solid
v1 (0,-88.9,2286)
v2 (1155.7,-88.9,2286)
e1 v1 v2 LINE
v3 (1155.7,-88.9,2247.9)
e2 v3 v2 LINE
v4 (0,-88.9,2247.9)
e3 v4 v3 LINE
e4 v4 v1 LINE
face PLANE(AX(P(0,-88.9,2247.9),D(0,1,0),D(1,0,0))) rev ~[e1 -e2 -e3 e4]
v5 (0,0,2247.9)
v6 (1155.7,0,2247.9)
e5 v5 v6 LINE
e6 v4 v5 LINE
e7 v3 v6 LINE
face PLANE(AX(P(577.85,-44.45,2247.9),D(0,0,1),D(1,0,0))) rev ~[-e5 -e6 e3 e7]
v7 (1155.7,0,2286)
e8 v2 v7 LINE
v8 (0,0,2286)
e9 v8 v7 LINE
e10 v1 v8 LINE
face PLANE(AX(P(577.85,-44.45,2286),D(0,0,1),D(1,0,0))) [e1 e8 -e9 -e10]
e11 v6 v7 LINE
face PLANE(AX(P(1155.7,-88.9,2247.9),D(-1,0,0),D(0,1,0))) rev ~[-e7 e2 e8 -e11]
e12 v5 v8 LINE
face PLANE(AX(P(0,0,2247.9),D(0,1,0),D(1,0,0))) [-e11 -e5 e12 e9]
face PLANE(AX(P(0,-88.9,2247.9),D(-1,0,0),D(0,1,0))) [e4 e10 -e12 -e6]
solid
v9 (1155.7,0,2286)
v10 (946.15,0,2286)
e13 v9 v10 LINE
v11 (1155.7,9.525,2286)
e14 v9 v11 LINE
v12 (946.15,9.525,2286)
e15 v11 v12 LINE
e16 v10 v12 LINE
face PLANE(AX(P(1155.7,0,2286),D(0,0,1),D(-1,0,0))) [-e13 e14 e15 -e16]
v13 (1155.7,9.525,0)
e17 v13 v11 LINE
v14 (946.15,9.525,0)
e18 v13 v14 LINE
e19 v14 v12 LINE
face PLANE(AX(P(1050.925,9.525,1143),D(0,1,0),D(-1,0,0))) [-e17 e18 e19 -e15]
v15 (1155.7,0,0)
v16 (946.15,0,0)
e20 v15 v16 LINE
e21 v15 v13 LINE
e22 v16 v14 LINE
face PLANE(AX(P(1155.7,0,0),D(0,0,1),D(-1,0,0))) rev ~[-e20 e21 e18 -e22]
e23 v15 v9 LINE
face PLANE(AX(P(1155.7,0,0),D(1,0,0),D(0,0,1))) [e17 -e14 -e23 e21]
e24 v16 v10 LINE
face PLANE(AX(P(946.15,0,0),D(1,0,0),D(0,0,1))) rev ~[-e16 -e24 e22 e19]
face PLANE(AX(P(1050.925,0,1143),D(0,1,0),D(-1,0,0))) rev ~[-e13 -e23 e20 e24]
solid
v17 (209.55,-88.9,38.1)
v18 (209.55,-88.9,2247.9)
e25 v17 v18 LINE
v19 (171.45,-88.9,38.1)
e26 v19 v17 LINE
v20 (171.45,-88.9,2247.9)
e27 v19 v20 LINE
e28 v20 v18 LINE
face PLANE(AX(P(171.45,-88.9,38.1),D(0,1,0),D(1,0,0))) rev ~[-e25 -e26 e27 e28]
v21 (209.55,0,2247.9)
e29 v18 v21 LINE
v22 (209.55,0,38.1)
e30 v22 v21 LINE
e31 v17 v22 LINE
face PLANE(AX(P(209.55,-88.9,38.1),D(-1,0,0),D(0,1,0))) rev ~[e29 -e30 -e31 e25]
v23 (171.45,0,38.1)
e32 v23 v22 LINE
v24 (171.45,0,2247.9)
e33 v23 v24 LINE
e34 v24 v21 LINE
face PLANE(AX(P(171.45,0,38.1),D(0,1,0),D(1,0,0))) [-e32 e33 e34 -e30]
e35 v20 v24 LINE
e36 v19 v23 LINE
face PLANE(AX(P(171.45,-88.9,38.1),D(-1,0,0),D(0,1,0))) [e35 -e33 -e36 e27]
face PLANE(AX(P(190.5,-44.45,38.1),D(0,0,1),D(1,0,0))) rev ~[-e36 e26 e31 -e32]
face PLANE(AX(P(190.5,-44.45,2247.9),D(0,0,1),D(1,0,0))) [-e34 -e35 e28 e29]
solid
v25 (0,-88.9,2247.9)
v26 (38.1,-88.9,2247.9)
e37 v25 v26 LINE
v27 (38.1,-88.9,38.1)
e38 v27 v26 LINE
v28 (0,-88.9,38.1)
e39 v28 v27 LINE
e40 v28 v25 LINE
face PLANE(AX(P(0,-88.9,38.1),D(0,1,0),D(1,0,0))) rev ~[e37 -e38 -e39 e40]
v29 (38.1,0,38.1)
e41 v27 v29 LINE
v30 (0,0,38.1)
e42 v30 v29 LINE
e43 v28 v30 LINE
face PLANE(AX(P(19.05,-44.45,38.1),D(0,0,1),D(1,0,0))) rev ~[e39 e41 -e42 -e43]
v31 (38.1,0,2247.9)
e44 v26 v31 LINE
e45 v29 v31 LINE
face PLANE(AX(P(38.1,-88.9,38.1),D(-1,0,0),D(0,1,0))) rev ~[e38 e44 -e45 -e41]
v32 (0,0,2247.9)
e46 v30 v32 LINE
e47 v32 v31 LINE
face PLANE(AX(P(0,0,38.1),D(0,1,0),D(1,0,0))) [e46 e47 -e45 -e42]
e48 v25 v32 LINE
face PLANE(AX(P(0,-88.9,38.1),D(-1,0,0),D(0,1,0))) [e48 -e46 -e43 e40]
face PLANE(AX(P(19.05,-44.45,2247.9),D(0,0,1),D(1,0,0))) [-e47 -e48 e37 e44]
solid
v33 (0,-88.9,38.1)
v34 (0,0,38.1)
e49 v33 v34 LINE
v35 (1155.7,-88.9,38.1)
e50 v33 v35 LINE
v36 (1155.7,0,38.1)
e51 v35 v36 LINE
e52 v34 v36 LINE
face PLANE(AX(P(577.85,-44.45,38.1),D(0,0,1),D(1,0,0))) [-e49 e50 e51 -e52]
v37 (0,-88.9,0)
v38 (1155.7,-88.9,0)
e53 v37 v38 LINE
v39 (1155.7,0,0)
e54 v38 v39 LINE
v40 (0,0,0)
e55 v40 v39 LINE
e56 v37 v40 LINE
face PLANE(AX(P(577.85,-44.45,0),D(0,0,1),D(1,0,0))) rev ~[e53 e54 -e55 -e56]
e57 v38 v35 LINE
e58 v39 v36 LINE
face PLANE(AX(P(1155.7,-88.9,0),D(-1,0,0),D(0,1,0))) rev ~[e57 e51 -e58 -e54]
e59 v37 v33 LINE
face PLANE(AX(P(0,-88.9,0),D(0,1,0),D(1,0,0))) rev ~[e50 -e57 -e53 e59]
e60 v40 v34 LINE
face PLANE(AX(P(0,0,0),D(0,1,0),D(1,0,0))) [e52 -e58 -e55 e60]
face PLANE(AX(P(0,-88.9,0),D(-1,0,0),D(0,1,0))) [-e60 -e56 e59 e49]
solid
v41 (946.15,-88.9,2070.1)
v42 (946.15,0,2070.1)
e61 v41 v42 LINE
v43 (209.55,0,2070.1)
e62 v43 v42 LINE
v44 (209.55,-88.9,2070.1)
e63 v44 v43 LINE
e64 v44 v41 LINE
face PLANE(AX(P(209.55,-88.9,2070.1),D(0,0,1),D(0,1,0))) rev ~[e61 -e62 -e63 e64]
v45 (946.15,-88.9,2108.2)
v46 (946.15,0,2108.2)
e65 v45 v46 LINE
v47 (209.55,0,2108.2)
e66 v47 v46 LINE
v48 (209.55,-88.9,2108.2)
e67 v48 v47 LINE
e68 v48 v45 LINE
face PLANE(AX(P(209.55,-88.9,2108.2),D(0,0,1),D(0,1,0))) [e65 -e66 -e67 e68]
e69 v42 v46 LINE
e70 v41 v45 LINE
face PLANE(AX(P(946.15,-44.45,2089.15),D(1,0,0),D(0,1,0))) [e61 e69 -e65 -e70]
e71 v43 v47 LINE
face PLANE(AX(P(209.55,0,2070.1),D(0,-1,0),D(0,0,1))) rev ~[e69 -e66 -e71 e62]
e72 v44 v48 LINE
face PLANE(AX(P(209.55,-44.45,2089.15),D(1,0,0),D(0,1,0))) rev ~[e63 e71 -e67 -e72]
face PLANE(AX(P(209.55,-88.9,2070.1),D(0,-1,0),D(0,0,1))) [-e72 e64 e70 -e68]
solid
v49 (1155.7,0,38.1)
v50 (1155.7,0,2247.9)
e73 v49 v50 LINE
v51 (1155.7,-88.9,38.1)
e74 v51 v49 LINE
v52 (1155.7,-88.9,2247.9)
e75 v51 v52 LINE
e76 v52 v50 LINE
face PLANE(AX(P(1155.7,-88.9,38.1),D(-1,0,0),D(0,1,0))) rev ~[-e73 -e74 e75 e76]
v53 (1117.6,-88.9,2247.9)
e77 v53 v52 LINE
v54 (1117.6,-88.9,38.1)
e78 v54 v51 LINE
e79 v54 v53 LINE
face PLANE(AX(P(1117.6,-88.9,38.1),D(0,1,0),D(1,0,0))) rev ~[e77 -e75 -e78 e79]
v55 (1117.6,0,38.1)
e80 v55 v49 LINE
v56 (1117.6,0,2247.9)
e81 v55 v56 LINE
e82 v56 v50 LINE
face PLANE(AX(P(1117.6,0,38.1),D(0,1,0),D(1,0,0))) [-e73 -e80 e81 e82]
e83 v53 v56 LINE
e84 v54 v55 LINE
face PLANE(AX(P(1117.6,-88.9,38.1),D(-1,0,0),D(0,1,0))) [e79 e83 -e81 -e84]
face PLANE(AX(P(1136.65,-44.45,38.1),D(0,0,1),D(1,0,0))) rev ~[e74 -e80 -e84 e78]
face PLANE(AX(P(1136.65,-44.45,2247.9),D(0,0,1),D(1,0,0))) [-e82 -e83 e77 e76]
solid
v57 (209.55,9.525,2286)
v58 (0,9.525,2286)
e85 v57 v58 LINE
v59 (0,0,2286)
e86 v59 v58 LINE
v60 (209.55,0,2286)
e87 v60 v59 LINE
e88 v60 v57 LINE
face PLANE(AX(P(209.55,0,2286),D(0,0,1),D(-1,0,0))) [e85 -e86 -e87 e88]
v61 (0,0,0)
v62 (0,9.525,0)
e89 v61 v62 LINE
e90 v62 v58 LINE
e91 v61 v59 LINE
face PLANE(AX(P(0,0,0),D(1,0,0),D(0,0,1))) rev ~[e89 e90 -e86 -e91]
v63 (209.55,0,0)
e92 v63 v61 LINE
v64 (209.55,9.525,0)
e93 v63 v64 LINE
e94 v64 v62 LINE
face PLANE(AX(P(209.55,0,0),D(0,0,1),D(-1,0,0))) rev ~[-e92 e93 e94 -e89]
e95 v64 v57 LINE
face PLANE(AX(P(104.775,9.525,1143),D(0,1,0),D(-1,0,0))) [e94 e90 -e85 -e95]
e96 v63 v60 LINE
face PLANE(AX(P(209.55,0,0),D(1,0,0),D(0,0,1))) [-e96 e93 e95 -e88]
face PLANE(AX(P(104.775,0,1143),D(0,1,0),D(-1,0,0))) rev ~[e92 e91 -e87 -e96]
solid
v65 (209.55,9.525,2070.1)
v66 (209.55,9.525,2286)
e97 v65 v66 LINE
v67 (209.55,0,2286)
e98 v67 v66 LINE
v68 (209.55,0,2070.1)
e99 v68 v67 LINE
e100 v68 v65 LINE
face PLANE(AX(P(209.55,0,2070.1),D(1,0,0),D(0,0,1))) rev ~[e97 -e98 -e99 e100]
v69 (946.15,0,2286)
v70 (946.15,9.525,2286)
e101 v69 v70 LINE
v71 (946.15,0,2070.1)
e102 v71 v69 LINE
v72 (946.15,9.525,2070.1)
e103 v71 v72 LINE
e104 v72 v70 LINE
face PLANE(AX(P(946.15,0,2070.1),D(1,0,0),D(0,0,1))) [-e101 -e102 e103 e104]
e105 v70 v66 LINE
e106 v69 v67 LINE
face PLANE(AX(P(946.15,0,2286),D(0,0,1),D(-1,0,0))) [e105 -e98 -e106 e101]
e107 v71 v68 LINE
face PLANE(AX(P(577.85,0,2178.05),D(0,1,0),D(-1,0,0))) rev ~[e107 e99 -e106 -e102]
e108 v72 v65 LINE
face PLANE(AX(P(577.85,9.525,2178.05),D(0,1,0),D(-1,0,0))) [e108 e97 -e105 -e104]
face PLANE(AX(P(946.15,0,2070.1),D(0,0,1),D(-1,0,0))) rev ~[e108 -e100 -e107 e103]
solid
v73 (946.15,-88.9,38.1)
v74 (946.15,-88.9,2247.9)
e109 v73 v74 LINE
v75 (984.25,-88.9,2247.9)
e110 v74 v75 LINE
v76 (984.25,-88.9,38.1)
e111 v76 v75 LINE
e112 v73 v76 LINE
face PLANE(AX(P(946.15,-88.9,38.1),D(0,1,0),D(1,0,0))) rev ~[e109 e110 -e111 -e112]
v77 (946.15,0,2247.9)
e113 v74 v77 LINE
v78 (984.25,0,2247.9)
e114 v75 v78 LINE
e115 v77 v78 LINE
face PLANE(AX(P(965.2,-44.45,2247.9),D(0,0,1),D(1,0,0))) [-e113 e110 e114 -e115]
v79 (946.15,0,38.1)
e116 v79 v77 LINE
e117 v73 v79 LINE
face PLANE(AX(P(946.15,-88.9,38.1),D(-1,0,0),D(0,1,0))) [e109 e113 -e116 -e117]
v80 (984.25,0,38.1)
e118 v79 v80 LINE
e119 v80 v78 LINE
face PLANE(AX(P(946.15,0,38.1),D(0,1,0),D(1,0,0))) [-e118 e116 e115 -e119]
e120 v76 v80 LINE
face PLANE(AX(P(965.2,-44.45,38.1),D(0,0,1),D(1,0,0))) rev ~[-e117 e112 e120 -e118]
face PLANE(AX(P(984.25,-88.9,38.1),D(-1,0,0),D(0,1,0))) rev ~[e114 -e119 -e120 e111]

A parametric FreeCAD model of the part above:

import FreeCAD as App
import Part
import Sketcher
Q = App.Units.Quantity


def add_polygon(sketch, points):
    """Adds a closed chain of lines whose ends are joined by coincident constraints."""
    first, n = sketch.GeometryCount, len(points)
    for a, b in zip(points, points[1:] + points[:1]):
        sketch.addGeometry(Part.LineSegment(App.Vector(*a, 0), App.Vector(*b, 0)), False)
    for i in range(n):
        sketch.addConstraint(Sketcher.Constraint("Coincident", first + i, 2, first + (i + 1) % n, 1))

doc = App.newDocument("Part")
body = doc.addObject("PartDesign::Body", "Body")

# Sketch on XY plane
sketch1 = body.newObject("Sketcher::SketchObject", "Sketch")
sketch1.AttachmentSupport = (doc.getObject("XY_Plane"), [""])
sketch1.MapMode = "FlatFace"
add_polygon(sketch1, [(0, 0), (0, -89), (1156, -89), (1156, 0)])  # lines 0-3
sketch1.addConstraint(Sketcher.Constraint("Vertical", 0))
sketch1.addConstraint(Sketcher.Constraint("Horizontal", 1))
sketch1.addConstraint(Sketcher.Constraint("Vertical", 2))
sketch1.addConstraint(Sketcher.Constraint("Horizontal", 3))
sketch1.addConstraint(Sketcher.Constraint("Coincident", 3, 2, -1, 1))
sketch1.addConstraint(Sketcher.Constraint("DistanceX", 1, 1, 1, 2, Q("45.5 in")))
sketch1.addConstraint(Sketcher.Constraint("DistanceY", 0, 2, 0, 1, Q("3.5 in")))
pad1 = body.newObject("PartDesign::Pad", "Pad")
pad1.Profile = sketch1
pad1.Length = Q("1.5 in")
body2 = doc.addObject("PartDesign::Body", "Body001")

# Sketch on XY plane
sketch2 = body2.newObject("Sketcher::SketchObject", "Sketch001")
sketch2.AttachmentSupport = (doc.getObject("XY_Plane001"), [""])
sketch2.MapMode = "FlatFace"
sketch2.AttachmentOffset = App.Placement(App.Vector(0, 0, 1.5 * 25.4), App.Rotation())
add_polygon(sketch2, [(0, 0), (0, -89), (38, -89), (38, 0)])  # lines 0-3
sketch2.addConstraint(Sketcher.Constraint("Vertical", 0))
sketch2.addConstraint(Sketcher.Constraint("Horizontal", 1))
sketch2.addConstraint(Sketcher.Constraint("Vertical", 2))
sketch2.addConstraint(Sketcher.Constraint("Horizontal", 3))
sketch2.addConstraint(Sketcher.Constraint("Coincident", 3, 2, -1, 1))
sketch2.addConstraint(Sketcher.Constraint("DistanceX", 1, 1, 1, 2, Q("1.5 in")))
sketch2.addConstraint(Sketcher.Constraint("DistanceY", 0, 2, 0, 1, Q("3.5 in")))
pad2 = body2.newObject("PartDesign::Pad", "Pad001")
pad2.Profile = sketch2
pad2.Length = Q("87 in")
body3 = doc.addObject("PartDesign::Body", "Body002")

# Sketch on XY plane
sketch3 = body3.newObject("Sketcher::SketchObject", "Sketch002")
sketch3.AttachmentSupport = (doc.getObject("XY_Plane002"), [""])
sketch3.MapMode = "FlatFace"
sketch3.AttachmentOffset = App.Placement(App.Vector(0, 0, 1.5 * 25.4), App.Rotation())
add_polygon(sketch3, [(1118, 0), (1118, -89), (1156, -89), (1156, 0)])  # lines 0-3
sketch3.addConstraint(Sketcher.Constraint("Vertical", 0))
sketch3.addConstraint(Sketcher.Constraint("Horizontal", 1))
sketch3.addConstraint(Sketcher.Constraint("Vertical", 2))
sketch3.addConstraint(Sketcher.Constraint("Horizontal", 3))
sketch3.addConstraint(Sketcher.Constraint("PointOnObject", 2, 2, -1))
sketch3.addConstraint(Sketcher.Constraint("DistanceX", 1, 1, 1, 2, Q("1.5 in")))
sketch3.addConstraint(Sketcher.Constraint("DistanceY", 0, 2, 0, 1, Q("3.5 in")))
sketch3.addConstraint(Sketcher.Constraint("DistanceX", -1, 1, 0, 2, Q("44 in")))
pad3 = body3.newObject("PartDesign::Pad", "Pad002")
pad3.Profile = sketch3
pad3.Length = Q("87 in")
body4 = doc.addObject("PartDesign::Body", "Body003")

# Sketch on XY plane
sketch4 = body4.newObject("Sketcher::SketchObject", "Sketch003")
sketch4.AttachmentSupport = (doc.getObject("XY_Plane003"), [""])
sketch4.MapMode = "FlatFace"
sketch4.AttachmentOffset = App.Placement(App.Vector(0, 0, 1.5 * 25.4), App.Rotation())
add_polygon(sketch4, [(171, 0), (171, -89), (210, -89), (210, 0)])  # lines 0-3
sketch4.addConstraint(Sketcher.Constraint("Vertical", 0))
sketch4.addConstraint(Sketcher.Constraint("Horizontal", 1))
sketch4.addConstraint(Sketcher.Constraint("Vertical", 2))
sketch4.addConstraint(Sketcher.Constraint("Horizontal", 3))
sketch4.addConstraint(Sketcher.Constraint("PointOnObject", 2, 2, -1))
sketch4.addConstraint(Sketcher.Constraint("DistanceX", 1, 1, 1, 2, Q("1.5 in")))
sketch4.addConstraint(Sketcher.Constraint("DistanceY", 0, 2, 0, 1, Q("3.5 in")))
sketch4.addConstraint(Sketcher.Constraint("DistanceX", -1, 1, 0, 2, Q("6.75 in")))
pad4 = body4.newObject("PartDesign::Pad", "Pad003")
pad4.Profile = sketch4
pad4.Length = Q("87 in")
body5 = doc.addObject("PartDesign::Body", "Body004")

# Sketch on XY plane
sketch5 = body5.newObject("Sketcher::SketchObject", "Sketch004")
sketch5.AttachmentSupport = (doc.getObject("XY_Plane004"), [""])
sketch5.MapMode = "FlatFace"
sketch5.AttachmentOffset = App.Placement(App.Vector(0, 0, 1.5 * 25.4), App.Rotation())
add_polygon(sketch5, [(946, 0), (946, -89), (984, -89), (984, 0)])  # lines 0-3
sketch5.addConstraint(Sketcher.Constraint("Vertical", 0))
sketch5.addConstraint(Sketcher.Constraint("Horizontal", 1))
sketch5.addConstraint(Sketcher.Constraint("Vertical", 2))
sketch5.addConstraint(Sketcher.Constraint("Horizontal", 3))
sketch5.addConstraint(Sketcher.Constraint("PointOnObject", 2, 2, -1))
sketch5.addConstraint(Sketcher.Constraint("DistanceX", 1, 1, 1, 2, Q("1.5 in")))
sketch5.addConstraint(Sketcher.Constraint("DistanceY", 0, 2, 0, 1, Q("3.5 in")))
sketch5.addConstraint(Sketcher.Constraint("DistanceX", -1, 1, 0, 2, Q("37.25 in")))
pad5 = body5.newObject("PartDesign::Pad", "Pad004")
pad5.Profile = sketch5
pad5.Length = Q("87 in")
body6 = doc.addObject("PartDesign::Body", "Body005")

# Sketch on XY plane
sketch6 = body6.newObject("Sketcher::SketchObject", "Sketch005")
sketch6.AttachmentSupport = (doc.getObject("XY_Plane005"), [""])
sketch6.MapMode = "FlatFace"
sketch6.AttachmentOffset = App.Placement(App.Vector(0, 0, 88.5 * 25.4), App.Rotation())
add_polygon(sketch6, [(0, 0), (0, -89), (1156, -89), (1156, 0)])  # lines 0-3
sketch6.addConstraint(Sketcher.Constraint("Vertical", 0))
sketch6.addConstraint(Sketcher.Constraint("Horizontal", 1))
sketch6.addConstraint(Sketcher.Constraint("Vertical", 2))
sketch6.addConstraint(Sketcher.Constraint("Horizontal", 3))
sketch6.addConstraint(Sketcher.Constraint("Coincident", 3, 2, -1, 1))
sketch6.addConstraint(Sketcher.Constraint("DistanceX", 1, 1, 1, 2, Q("45.5 in")))
sketch6.addConstraint(Sketcher.Constraint("DistanceY", 0, 2, 0, 1, Q("3.5 in")))
pad6 = body6.newObject("PartDesign::Pad", "Pad005")
pad6.Profile = sketch6
pad6.Length = Q("1.5 in")
body7 = doc.addObject("PartDesign::Body", "Body006")

# Sketch on YZ plane
sketch7 = body7.newObject("Sketcher::SketchObject", "Sketch006")
sketch7.AttachmentSupport = (doc.getObject("YZ_Plane006"), [""])
sketch7.MapMode = "FlatFace"
sketch7.AttachmentOffset = App.Placement(App.Vector(0, 0, 8.25 * 25.4), App.Rotation())
add_polygon(sketch7, [(-89, 2108), (-89, 2070), (0, 2070), (0, 2108)])  # lines 0-3
sketch7.addConstraint(Sketcher.Constraint("Vertical", 0))
sketch7.addConstraint(Sketcher.Constraint("Horizontal", 1))
sketch7.addConstraint(Sketcher.Constraint("Vertical", 2))
sketch7.addConstraint(Sketcher.Constraint("Horizontal", 3))
sketch7.addConstraint(Sketcher.Constraint("PointOnObject", 1, 2, -2))
sketch7.addConstraint(Sketcher.Constraint("DistanceX", 1, 1, 1, 2, Q("3.5 in")))
sketch7.addConstraint(Sketcher.Constraint("DistanceY", 0, 2, 0, 1, Q("1.5 in")))
sketch7.addConstraint(Sketcher.Constraint("DistanceY", -1, 1, 2, 2, Q("83 in")))
pad7 = body7.newObject("PartDesign::Pad", "Pad006")
pad7.Profile = sketch7
pad7.Length = Q("29 in")
body8 = doc.addObject("PartDesign::Body", "Body007")

# Sketch on XZ plane
sketch8 = body8.newObject("Sketcher::SketchObject", "Sketch007")
sketch8.AttachmentSupport = (doc.getObject("XZ_Plane007"), [""])
sketch8.MapMode = "FlatFace"
add_polygon(sketch8, [(1156, 2286), (1156, 0), (946, 0), (946, 2286)])  # lines 0-3
sketch8.addConstraint(Sketcher.Constraint("Vertical", 0))
sketch8.addConstraint(Sketcher.Constraint("Horizontal", 1))
sketch8.addConstraint(Sketcher.Constraint("Vertical", 2))
sketch8.addConstraint(Sketcher.Constraint("Horizontal", 3))
sketch8.addConstraint(Sketcher.Constraint("PointOnObject", 0, 2, -1))
sketch8.addConstraint(Sketcher.Constraint("DistanceY", 0, 2, 0, 1, Q("90 in")))
sketch8.addConstraint(Sketcher.Constraint("DistanceX", 1, 2, 1, 1, Q("8.25 in")))
sketch8.addConstraint(Sketcher.Constraint("DistanceX", -1, 1, 0, 2, Q("45.5 in")))
pad8 = body8.newObject("PartDesign::Pad", "Pad007")
pad8.Profile = sketch8
pad8.Length = Q("0.375 in")
pad8.Reversed = True
body9 = doc.addObject("PartDesign::Body", "Body008")

# Sketch on XZ plane
sketch9 = body9.newObject("Sketcher::SketchObject", "Sketch008")
sketch9.AttachmentSupport = (doc.getObject("XZ_Plane008"), [""])
sketch9.MapMode = "FlatFace"
add_polygon(sketch9, [(210, 2286), (210, 0), (0, 0), (0, 2286)])  # lines 0-3
sketch9.addConstraint(Sketcher.Constraint("Vertical", 0))
sketch9.addConstraint(Sketcher.Constraint("Horizontal", 1))
sketch9.addConstraint(Sketcher.Constraint("Vertical", 2))
sketch9.addConstraint(Sketcher.Constraint("Horizontal", 3))
sketch9.addConstraint(Sketcher.Constraint("Coincident", 1, 2, -1, 1))
sketch9.addConstraint(Sketcher.Constraint("DistanceY", 0, 2, 0, 1, Q("90 in")))
sketch9.addConstraint(Sketcher.Constraint("DistanceX", 1, 2, 1, 1, Q("8.25 in")))
pad9 = body9.newObject("PartDesign::Pad", "Pad008")
pad9.Profile = sketch9
pad9.Length = Q("0.375 in")
pad9.Reversed = True
body10 = doc.addObject("PartDesign::Body", "Body009")

# Sketch on XZ plane
sketch10 = body10.newObject("Sketcher::SketchObject", "Sketch009")
sketch10.AttachmentSupport = (doc.getObject("XZ_Plane009"), [""])
sketch10.MapMode = "FlatFace"
add_polygon(sketch10, [(946, 2286), (946, 2070), (210, 2070), (210, 2286)])  # lines 0-3
sketch10.addConstraint(Sketcher.Constraint("Vertical", 0))
sketch10.addConstraint(Sketcher.Constraint("Horizontal", 1))
sketch10.addConstraint(Sketcher.Constraint("Vertical", 2))
sketch10.addConstraint(Sketcher.Constraint("Horizontal", 3))
sketch10.addConstraint(Sketcher.Constraint("DistanceX", 1, 2, 1, 1, Q("29 in")))
sketch10.addConstraint(Sketcher.Constraint("DistanceY", 0, 2, 0, 1, Q("8.5 in")))
sketch10.addConstraint(Sketcher.Constraint("DistanceY", -1, 1, 2, 2, Q("90 in")))
sketch10.addConstraint(Sketcher.Constraint("DistanceX", -1, 1, 0, 2, Q("37.25 in")))
pad10 = body10.newObject("PartDesign::Pad", "Pad009")
pad10.Profile = sketch10
pad10.Length = Q("0.375 in")
pad10.Reversed = True

doc.recompute()
